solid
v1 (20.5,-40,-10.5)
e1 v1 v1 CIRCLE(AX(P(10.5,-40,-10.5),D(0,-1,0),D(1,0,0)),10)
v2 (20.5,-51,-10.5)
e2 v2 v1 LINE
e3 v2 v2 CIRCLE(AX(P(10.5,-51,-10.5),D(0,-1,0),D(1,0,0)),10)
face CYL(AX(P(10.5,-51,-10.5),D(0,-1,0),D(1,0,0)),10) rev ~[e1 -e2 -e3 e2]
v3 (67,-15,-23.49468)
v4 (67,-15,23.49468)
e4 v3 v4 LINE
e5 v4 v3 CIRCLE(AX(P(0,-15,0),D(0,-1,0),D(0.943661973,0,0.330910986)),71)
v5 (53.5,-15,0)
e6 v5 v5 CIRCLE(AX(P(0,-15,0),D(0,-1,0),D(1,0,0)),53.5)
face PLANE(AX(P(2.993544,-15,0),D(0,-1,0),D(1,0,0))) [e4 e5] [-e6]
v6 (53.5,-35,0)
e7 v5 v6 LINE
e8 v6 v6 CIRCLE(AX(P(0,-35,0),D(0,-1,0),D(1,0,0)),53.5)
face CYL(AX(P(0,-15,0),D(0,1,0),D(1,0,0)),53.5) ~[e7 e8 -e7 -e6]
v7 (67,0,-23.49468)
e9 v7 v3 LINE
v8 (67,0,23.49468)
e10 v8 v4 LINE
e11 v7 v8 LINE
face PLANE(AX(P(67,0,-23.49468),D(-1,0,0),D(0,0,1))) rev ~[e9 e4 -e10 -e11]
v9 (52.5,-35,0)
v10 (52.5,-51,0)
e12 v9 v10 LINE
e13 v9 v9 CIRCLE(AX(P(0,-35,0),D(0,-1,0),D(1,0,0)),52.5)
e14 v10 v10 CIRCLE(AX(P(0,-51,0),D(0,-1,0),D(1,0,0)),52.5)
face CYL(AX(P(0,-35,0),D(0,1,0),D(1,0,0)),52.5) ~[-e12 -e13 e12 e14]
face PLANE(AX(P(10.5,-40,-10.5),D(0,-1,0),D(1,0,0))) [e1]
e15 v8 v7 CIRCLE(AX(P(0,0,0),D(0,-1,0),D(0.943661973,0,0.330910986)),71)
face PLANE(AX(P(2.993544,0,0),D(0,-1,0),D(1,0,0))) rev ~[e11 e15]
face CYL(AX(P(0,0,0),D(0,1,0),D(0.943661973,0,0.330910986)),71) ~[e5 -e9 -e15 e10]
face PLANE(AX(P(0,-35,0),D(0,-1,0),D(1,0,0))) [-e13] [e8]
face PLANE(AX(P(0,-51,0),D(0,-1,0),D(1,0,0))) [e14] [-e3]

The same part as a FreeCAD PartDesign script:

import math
import FreeCAD as App
import Part
import Sketcher
from FreeCAD import Vector
Q = App.Units.Quantity

doc = App.newDocument("Part")
body = doc.addObject("PartDesign::Body", "Body")

# Sketch on XZ plane
sketch1 = body.newObject("Sketcher::SketchObject", "Sketch")
sketch1.AttachmentSupport = (doc.getObject("XZ_Plane"), [""])
sketch1.MapMode = "FlatFace"
sketch1.addGeometry(Part.LineSegment(Vector(67, -23, 0), Vector(67, 23, 0)), False)
sketch1.addGeometry(Part.ArcOfCircle(Part.Circle(Vector(0, 0, 0), Vector(0, 0, 1), 71), math.radians(19), math.radians(341)), False)
sketch1.addConstraint(Sketcher.Constraint("Coincident", 0, 1, 1, 2))
sketch1.addConstraint(Sketcher.Constraint("Coincident", 1, 1, 0, 2))
sketch1.addConstraint(Sketcher.Constraint("Vertical", 0))
sketch1.addConstraint(Sketcher.Constraint("Coincident", 1, 3, -1, 1))
sketch1.addConstraint(Sketcher.Constraint("Radius", 1, Q("71 mm")))
sketch1.addConstraint(Sketcher.Constraint("DistanceX", -1, 1, 0, 1, Q("67 mm")))
pad1 = body.newObject("PartDesign::Pad", "Pad")
pad1.Profile = sketch1
pad1.Length = 15

# Sketch on XZ plane
sketch2 = body.newObject("Sketcher::SketchObject", "Sketch001")
sketch2.AttachmentSupport = (doc.getObject("XZ_Plane"), [""])
sketch2.MapMode = "FlatFace"
sketch2.AttachmentOffset = App.Placement(Vector(0, 0, 15), App.Rotation())
sketch2.addGeometry(Part.Circle(Vector(0, 0, 0), Vector(0, 0, 1), 54), False)
sketch2.addConstraint(Sketcher.Constraint("Coincident", 0, 3, -1, 1))
sketch2.addConstraint(Sketcher.Constraint("Diameter", 0, Q("107 mm")))
pad2 = body.newObject("PartDesign::Pad", "Pad001")
pad2.Profile = sketch2
pad2.Length = 20

# Sketch on XZ plane
sketch3 = body.newObject("Sketcher::SketchObject", "Sketch002")
sketch3.AttachmentSupport = (doc.getObject("XZ_Plane"), [""])
sketch3.MapMode = "FlatFace"
sketch3.AttachmentOffset = App.Placement(Vector(0, 0, 35), App.Rotation())
sketch3.addGeometry(Part.Circle(Vector(0, 0, 0), Vector(0, 0, 1), 52), False)
sketch3.addConstraint(Sketcher.Constraint("Coincident", 0, 3, -1, 1))
sketch3.addConstraint(Sketcher.Constraint("Diameter", 0, Q("105 mm")))
pad3 = body.newObject("PartDesign::Pad", "Pad002")
pad3.Profile = sketch3
pad3.Length = 16

# Sketch on XZ plane
sketch4 = body.newObject("Sketcher::SketchObject", "Sketch003")
sketch4.AttachmentSupport = (doc.getObject("XZ_Plane"), [""])
sketch4.MapMode = "FlatFace"
sketch4.AttachmentOffset = App.Placement(Vector(0, 0, 51), App.Rotation())
sketch4.addGeometry(Part.Circle(Vector(10, -10, 0), Vector(0, 0, 1), 10), False)
sketch4.addConstraint(Sketcher.Constraint("Diameter", 0, Q("20 mm")))
sketch4.addConstraint(Sketcher.Constraint("DistanceX", -1, 1, 0, 3, Q("10.5 mm")))
sketch4.addConstraint(Sketcher.Constraint("DistanceY", 0, 3, -1, 1, Q("10.5 mm")))
pocket1 = body.newObject("PartDesign::Pocket", "Pocket")
pocket1.Profile = sketch4
pocket1.Length = 11

doc.recompute()
